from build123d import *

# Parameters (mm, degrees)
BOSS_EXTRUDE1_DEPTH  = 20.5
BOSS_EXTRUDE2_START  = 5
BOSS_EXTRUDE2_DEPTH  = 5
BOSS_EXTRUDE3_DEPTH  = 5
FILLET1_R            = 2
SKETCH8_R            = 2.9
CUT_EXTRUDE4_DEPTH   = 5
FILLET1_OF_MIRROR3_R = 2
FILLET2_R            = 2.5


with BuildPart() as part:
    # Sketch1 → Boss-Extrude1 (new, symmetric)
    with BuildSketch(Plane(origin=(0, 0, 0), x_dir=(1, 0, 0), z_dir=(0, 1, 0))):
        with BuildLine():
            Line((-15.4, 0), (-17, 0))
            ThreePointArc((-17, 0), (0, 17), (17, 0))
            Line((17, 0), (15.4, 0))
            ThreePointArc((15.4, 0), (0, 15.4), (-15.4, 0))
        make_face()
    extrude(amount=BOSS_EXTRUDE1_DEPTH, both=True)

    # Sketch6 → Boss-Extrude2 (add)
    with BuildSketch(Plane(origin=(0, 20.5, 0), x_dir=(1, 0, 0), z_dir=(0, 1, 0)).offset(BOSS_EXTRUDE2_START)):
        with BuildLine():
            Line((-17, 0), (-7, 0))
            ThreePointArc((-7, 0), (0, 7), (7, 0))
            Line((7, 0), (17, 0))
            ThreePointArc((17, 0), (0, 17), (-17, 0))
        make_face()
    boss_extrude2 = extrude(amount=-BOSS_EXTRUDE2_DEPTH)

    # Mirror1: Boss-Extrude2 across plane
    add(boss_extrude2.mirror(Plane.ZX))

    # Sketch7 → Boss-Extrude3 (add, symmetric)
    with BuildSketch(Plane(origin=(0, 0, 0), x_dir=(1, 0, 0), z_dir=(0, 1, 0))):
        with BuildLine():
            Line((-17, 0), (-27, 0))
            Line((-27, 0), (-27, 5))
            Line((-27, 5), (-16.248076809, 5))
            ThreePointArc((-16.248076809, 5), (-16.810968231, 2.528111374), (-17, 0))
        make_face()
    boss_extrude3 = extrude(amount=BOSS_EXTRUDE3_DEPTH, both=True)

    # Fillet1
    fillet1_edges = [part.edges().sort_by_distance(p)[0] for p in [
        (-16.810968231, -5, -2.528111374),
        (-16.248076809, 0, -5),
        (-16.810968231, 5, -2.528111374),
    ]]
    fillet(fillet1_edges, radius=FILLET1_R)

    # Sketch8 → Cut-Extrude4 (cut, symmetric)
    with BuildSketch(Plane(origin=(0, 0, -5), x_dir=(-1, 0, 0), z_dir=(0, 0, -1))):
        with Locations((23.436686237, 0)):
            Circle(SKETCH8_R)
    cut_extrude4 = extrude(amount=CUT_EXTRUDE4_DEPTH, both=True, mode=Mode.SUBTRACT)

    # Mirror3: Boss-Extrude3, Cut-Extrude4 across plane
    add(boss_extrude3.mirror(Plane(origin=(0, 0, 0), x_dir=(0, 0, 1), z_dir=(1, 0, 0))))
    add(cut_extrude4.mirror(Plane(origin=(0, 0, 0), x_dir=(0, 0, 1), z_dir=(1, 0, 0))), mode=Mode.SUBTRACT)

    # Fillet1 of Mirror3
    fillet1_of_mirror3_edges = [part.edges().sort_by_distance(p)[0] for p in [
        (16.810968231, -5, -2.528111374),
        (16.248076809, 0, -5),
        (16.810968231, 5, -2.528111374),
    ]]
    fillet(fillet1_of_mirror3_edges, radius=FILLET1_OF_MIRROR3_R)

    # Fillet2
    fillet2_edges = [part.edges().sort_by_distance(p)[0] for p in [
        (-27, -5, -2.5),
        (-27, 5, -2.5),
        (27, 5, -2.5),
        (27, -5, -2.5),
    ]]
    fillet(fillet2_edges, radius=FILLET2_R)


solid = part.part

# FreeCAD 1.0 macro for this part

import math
import FreeCAD as App
import Part
import Sketcher


def edges_at(feature, points):
    """Names of the edges that pass closest to the given points."""
    edges = feature.Shape.Edges
    near = lambda p: min(range(len(edges)), key=lambda i: edges[i].distToShape(Part.Vertex(*p))[0])
    return sorted({f"Edge{near(p) + 1}" for p in points})

doc = App.newDocument("Part")
body = doc.addObject("PartDesign::Body", "Body")

# Sketch on XZ plane
sketch1 = body.newObject("Sketcher::SketchObject", "Sketch")
sketch1.AttachmentSupport = (doc.getObject("XZ_Plane"), [""])
sketch1.MapMode = "FlatFace"
sketch1.addGeometry(Part.LineSegment(App.Vector(-17, 0, 0), App.Vector(-15.4, 0, 0)), False)
sketch1.addGeometry(Part.ArcOfCircle(Part.Circle(App.Vector(0, 0, 0), App.Vector(0, 0, 1), 15.4), math.radians(180), math.radians(360)), False)
sketch1.addGeometry(Part.LineSegment(App.Vector(15.4, 0, 0), App.Vector(17, 0, 0)), False)
sketch1.addGeometry(Part.ArcOfCircle(Part.Circle(App.Vector(0, 0, 0), App.Vector(0, 0, 1), 17), math.radians(180), math.radians(360)), False)
sketch1.addConstraint(Sketcher.Constraint("Coincident", 0, 2, 1, 1))
sketch1.addConstraint(Sketcher.Constraint("Coincident", 1, 2, 2, 1))
sketch1.addConstraint(Sketcher.Constraint("Coincident", 2, 2, 3, 2))
sketch1.addConstraint(Sketcher.Constraint("Coincident", 3, 1, 0, 1))
sketch1.addConstraint(Sketcher.Constraint("Horizontal", 0))
sketch1.addConstraint(Sketcher.Constraint("Horizontal", 2))
sketch1.addConstraint(Sketcher.Constraint("Coincident", 1, 3, -1, 1))
sketch1.addConstraint(Sketcher.Constraint("Coincident", 3, 3, -1, 1))
sketch1.addConstraint(Sketcher.Constraint("PointOnObject", 0, 2, -1))
sketch1.addConstraint(Sketcher.Constraint("PointOnObject", 1, 2, -1))
sketch1.addConstraint(Sketcher.Constraint("Radius", 3, 17.0))
sketch1.addConstraint(Sketcher.Constraint("Radius", 1, 15.4))
pad1 = body.newObject("PartDesign::Pad", "Pad")
pad1.Profile = sketch1
pad1.Length = 41
pad1.Midplane = True

# Sketch on XZ plane
sketch2 = body.newObject("Sketcher::SketchObject", "Sketch001")
sketch2.AttachmentSupport = (doc.getObject("XZ_Plane"), [""])
sketch2.MapMode = "FlatFace"
sketch2.AttachmentOffset = App.Placement(App.Vector(0, 0, -25.5), App.Rotation())
sketch2.addGeometry(Part.LineSegment(App.Vector(-17, 0, 0), App.Vector(-7, 0, 0)), False)
sketch2.addGeometry(Part.ArcOfCircle(Part.Circle(App.Vector(0, 0, 0), App.Vector(0, 0, 1), 7), math.radians(180), math.radians(360)), False)
sketch2.addGeometry(Part.LineSegment(App.Vector(7, 0, 0), App.Vector(17, 0, 0)), False)
sketch2.addGeometry(Part.ArcOfCircle(Part.Circle(App.Vector(0, 0, 0), App.Vector(0, 0, 1), 17), math.radians(180), math.radians(360)), False)
sketch2.addConstraint(Sketcher.Constraint("Coincident", 0, 2, 1, 1))
sketch2.addConstraint(Sketcher.Constraint("Coincident", 1, 2, 2, 1))
sketch2.addConstraint(Sketcher.Constraint("Coincident", 2, 2, 3, 2))
sketch2.addConstraint(Sketcher.Constraint("Coincident", 3, 1, 0, 1))
sketch2.addConstraint(Sketcher.Constraint("Horizontal", 0))
sketch2.addConstraint(Sketcher.Constraint("Horizontal", 2))
sketch2.addConstraint(Sketcher.Constraint("Coincident", 1, 3, -1, 1))
sketch2.addConstraint(Sketcher.Constraint("Coincident", 3, 3, -1, 1))
sketch2.addConstraint(Sketcher.Constraint("PointOnObject", 0, 2, -1))
sketch2.addConstraint(Sketcher.Constraint("PointOnObject", 1, 2, -1))
sketch2.addConstraint(Sketcher.Constraint("Radius", 1, 7.0))
sketch2.addConstraint(Sketcher.Constraint("Radius", 3, 17.0))
pad2 = body.newObject("PartDesign::Pad", "Pad001")
pad2.Profile = sketch2
pad2.Length = 5
doc.recompute()

mirrored = body.newObject("PartDesign::Mirrored", "Mirrored")
mirrored.Originals = [pad2]
mirrored.MirrorPlane = (doc.getObject("XZ_Plane"), [""])
body.Tip = mirrored

# Sketch on XZ plane
sketch3 = body.newObject("Sketcher::SketchObject", "Sketch002")
sketch3.AttachmentSupport = (doc.getObject("XZ_Plane"), [""])
sketch3.MapMode = "FlatFace"
sketch3.addGeometry(Part.LineSegment(App.Vector(-27, 0, 0), App.Vector(-17, 0, 0)), False)
sketch3.addGeometry(Part.ArcOfCircle(Part.Circle(App.Vector(0, 0, 0), App.Vector(0, 0, 1), 17), math.radians(-180), math.radians(-162.9)), False)
sketch3.addGeometry(Part.LineSegment(App.Vector(-16, -5, 0), App.Vector(-27, -5, 0)), False)
sketch3.addGeometry(Part.LineSegment(App.Vector(-27, -5, 0), App.Vector(-27, 0, 0)), False)
sketch3.addConstraint(Sketcher.Constraint("Coincident", 0, 2, 1, 1))
sketch3.addConstraint(Sketcher.Constraint("Coincident", 1, 2, 2, 1))
sketch3.addConstraint(Sketcher.Constraint("Coincident", 2, 2, 3, 1))
sketch3.addConstraint(Sketcher.Constraint("Coincident", 3, 2, 0, 1))
sketch3.addConstraint(Sketcher.Constraint("Horizontal", 0))
sketch3.addConstraint(Sketcher.Constraint("Horizontal", 2))
sketch3.addConstraint(Sketcher.Constraint("Vertical", 3))
sketch3.addConstraint(Sketcher.Constraint("Coincident", 1, 3, -1, 1))
sketch3.addConstraint(Sketcher.Constraint("PointOnObject", 0, 2, -1))
sketch3.addConstraint(Sketcher.Constraint("Radius", 1, 17.0))
sketch3.addConstraint(Sketcher.Constraint("DistanceX", 0, 1, 0, 2, 10.0))
sketch3.addConstraint(Sketcher.Constraint("DistanceY", 3, 1, 3, 2, 5.0))
pad3 = body.newObject("PartDesign::Pad", "Pad002")
pad3.Profile = sketch3
pad3.Length = 10
pad3.Midplane = True
doc.recompute()

fillet = body.newObject("PartDesign::Fillet", "Fillet")
fillet.Base = (pad3, edges_at(pad3, [(-16.811, -5, -2.528), (-16.248, 0, -5), (-16.811, 5, -2.528)]))
fillet.Radius = 2

# Sketch on XY plane
sketch4 = body.newObject("Sketcher::SketchObject", "Sketch003")
sketch4.AttachmentSupport = (doc.getObject("XY_Plane"), [""])
sketch4.MapMode = "FlatFace"
sketch4.AttachmentOffset = App.Placement(App.Vector(0, 0, -5), App.Rotation())
sketch4.addGeometry(Part.Circle(App.Vector(-23.4, 0, 0), App.Vector(0, 0, 1), 2.9), False)
sketch4.addConstraint(Sketcher.Constraint("PointOnObject", 0, 3, -1))
sketch4.addConstraint(Sketcher.Constraint("Diameter", 0, 5.8))
sketch4.addConstraint(Sketcher.Constraint("DistanceX", 0, 3, -1, 1, 23.436686))
pocket1 = body.newObject("PartDesign::Pocket", "Pocket")
pocket1.Profile = sketch4
pocket1.Length = 10
pocket1.Midplane = True
doc.recompute()

mirrored2 = body.newObject("PartDesign::Mirrored", "Mirrored001")
mirrored2.Originals = [pad3, pocket1]
mirrored2.MirrorPlane = (doc.getObject("YZ_Plane"), [""])
body.Tip = mirrored2
doc.recompute()

fillet2 = body.newObject("PartDesign::Fillet", "Fillet001")
fillet2.Base = (mirrored2, edges_at(mirrored2, [(16.811, -5, -2.528), (16.248, 0, -5), (16.811, 5, -2.528)]))
fillet2.Radius = 2
doc.recompute()

fillet3 = body.newObject("PartDesign::Fillet", "Fillet002")
fillet3.Base = (fillet2, edges_at(fillet2, [
    (-27, -5, -2.5),
    (-27, 5, -2.5),
    (27, 5, -2.5),
    (27, -5, -2.5),
]))
fillet3.Radius = 2.5

doc.recompute()
